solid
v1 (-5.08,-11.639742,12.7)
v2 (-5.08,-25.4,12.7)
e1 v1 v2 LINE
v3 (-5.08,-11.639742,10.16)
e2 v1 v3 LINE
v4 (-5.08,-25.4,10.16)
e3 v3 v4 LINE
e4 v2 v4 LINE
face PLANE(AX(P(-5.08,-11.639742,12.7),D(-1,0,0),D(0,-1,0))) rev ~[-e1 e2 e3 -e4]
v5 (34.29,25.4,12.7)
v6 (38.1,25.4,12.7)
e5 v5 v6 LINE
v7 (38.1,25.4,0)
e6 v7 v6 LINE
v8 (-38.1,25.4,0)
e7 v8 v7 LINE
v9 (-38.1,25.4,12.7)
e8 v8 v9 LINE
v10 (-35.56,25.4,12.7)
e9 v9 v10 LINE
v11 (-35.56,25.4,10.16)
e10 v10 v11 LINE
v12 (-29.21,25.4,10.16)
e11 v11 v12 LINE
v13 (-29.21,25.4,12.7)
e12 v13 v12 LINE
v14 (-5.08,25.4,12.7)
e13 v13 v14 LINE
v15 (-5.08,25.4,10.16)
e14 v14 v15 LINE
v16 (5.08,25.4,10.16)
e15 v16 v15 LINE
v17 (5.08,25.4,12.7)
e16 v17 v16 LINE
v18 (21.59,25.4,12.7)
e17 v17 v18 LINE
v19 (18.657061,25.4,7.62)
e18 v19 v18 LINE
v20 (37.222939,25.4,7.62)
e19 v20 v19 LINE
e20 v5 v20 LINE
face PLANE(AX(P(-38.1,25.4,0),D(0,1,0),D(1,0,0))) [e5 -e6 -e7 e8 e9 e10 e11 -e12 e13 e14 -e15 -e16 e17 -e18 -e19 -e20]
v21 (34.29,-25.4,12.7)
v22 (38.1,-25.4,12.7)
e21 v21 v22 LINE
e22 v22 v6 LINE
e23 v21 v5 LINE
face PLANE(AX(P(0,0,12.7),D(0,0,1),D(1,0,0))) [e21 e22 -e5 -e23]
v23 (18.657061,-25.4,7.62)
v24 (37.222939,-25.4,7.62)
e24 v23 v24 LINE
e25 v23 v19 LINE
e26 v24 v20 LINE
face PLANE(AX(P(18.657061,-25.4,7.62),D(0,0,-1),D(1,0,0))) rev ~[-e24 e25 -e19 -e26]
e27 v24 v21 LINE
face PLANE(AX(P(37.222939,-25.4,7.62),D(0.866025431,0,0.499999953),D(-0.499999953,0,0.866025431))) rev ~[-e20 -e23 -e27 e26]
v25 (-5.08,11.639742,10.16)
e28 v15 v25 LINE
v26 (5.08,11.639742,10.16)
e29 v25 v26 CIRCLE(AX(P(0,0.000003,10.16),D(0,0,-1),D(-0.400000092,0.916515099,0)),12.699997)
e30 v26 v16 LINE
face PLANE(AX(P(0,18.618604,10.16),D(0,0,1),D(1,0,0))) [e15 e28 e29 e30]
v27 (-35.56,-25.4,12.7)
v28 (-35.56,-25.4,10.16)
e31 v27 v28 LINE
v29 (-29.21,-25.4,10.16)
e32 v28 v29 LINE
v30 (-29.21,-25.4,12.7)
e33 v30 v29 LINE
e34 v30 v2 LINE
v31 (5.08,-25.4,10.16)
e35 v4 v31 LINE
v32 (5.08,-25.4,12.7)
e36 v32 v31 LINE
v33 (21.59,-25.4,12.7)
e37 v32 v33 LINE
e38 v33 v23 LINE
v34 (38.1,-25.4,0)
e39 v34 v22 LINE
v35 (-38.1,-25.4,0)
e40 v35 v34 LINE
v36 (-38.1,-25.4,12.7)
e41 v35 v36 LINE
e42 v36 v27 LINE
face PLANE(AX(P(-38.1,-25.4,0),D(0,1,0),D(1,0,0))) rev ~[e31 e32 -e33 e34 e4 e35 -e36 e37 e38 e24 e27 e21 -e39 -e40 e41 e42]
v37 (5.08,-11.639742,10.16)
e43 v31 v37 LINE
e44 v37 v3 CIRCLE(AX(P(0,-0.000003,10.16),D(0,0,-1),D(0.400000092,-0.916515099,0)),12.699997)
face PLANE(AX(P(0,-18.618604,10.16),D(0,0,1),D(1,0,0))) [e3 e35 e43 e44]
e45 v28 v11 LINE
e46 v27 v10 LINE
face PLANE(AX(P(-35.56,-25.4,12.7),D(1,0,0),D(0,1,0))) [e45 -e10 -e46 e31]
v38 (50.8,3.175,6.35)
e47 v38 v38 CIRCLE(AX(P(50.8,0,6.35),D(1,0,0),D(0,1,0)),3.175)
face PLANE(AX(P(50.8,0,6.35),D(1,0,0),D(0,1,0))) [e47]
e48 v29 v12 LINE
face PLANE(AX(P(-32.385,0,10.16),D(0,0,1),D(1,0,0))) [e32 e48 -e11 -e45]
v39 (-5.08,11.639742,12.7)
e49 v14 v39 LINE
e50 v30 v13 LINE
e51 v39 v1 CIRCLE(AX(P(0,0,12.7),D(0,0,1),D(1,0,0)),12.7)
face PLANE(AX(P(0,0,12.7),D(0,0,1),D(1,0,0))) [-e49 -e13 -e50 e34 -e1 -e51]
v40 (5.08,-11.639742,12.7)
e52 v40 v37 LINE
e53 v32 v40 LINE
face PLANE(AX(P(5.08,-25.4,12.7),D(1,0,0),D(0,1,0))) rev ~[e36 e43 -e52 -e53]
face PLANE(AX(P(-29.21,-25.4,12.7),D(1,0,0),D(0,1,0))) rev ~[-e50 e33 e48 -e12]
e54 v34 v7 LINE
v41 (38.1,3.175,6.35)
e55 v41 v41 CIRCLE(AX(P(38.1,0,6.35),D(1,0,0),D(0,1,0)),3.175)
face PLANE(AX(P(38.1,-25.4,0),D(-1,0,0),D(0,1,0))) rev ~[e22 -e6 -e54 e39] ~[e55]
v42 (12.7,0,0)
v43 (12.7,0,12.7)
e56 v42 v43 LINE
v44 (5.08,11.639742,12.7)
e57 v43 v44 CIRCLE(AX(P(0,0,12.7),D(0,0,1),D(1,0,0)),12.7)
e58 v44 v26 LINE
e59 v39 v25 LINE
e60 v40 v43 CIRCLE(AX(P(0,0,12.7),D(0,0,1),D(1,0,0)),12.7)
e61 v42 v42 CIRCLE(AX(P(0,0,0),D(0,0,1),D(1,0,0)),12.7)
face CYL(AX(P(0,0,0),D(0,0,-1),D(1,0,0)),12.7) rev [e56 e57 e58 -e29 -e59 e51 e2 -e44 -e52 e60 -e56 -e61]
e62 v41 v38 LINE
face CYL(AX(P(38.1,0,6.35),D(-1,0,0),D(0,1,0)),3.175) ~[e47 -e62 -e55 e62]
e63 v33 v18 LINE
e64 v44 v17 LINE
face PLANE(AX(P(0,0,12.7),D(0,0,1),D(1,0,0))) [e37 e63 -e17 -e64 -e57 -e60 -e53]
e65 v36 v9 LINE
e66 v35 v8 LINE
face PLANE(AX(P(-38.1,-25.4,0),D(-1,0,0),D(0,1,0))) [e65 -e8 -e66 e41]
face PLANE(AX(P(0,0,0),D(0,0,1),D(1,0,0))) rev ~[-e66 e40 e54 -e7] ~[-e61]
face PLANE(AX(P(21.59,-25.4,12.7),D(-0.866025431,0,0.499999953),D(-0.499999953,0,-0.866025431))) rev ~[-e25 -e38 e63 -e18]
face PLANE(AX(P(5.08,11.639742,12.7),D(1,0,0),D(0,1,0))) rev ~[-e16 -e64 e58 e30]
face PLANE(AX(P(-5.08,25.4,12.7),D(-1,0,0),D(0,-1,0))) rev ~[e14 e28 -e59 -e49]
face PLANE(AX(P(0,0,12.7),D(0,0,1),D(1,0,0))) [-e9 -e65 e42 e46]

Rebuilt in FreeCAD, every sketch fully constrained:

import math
import FreeCAD as App
import Part
import Sketcher

V = App.Vector
Q = App.Units.Quantity

doc = App.newDocument("Part")
body = doc.addObject("PartDesign::Body", "Body")

sketch1 = body.newObject("Sketcher::SketchObject", "Sketch")
sketch1.AttachmentSupport = (doc.getObject("XY_Plane"), [""])
sketch1.MapMode = "FlatFace"
sketch1.addGeometry([
    Part.LineSegment(V(-38, 25, 0), V(-38, -25, 0)),
    Part.LineSegment(V(-38, -25, 0), V(38, -25, 0)),
    Part.LineSegment(V(38, -25, 0), V(38, 25, 0)),
    Part.LineSegment(V(38, 25, 0), V(-38, 25, 0)),
    Part.Circle(V(0, 0, 0), V(0, 0, 1), 13),
], False)
sketch1.addConstraint([
    Sketcher.Constraint("Coincident", 0, 2, 1, 1),
    Sketcher.Constraint("Coincident", 1, 2, 2, 1),
    Sketcher.Constraint("Coincident", 2, 2, 3, 1),
    Sketcher.Constraint("Coincident", 3, 2, 0, 1),
    Sketcher.Constraint("Vertical", 0),
    Sketcher.Constraint("Horizontal", 1),
    Sketcher.Constraint("Vertical", 2),
    Sketcher.Constraint("Horizontal", 3),
    Sketcher.Constraint("Coincident", 4, 3, -1, 1),
    Sketcher.Constraint("Symmetric", 0, 2, 2, 2, -1, 1),
    Sketcher.Constraint("Diameter", 4, Q("1 in")),
    Sketcher.Constraint("DistanceX", 1, 1, 1, 2, Q("3 in")),
    Sketcher.Constraint("DistanceY", 0, 2, 0, 1, Q("2 in")),
])
pad1 = body.newObject("PartDesign::Pad", "Pad")
pad1.Profile = sketch1
pad1.Length = Q("0.5 in")

sketch2 = body.newObject("Sketcher::SketchObject", "Sketch001")
sketch2.AttachmentSupport = (doc.getObject("XY_Plane"), [""])
sketch2.MapMode = "FlatFace"
sketch2.AttachmentOffset = App.Placement(V(0, 0, 0.5 * 25.4), App.Rotation())
sketch2.addGeometry([
    Part.ArcOfCircle(Part.Circle(V(0, 0, 0), V(0, 0, 1), 13), math.radians(-114), math.radians(-66)),
    Part.LineSegment(V(-5, -12, 0), V(-5, -25, 0)),
    Part.LineSegment(V(-5, -25, 0), V(5, -25, 0)),
    Part.LineSegment(V(5, -25, 0), V(5, -12, 0)),
    Part.LineSegment(V(5, 25, 0), V(-5, 25, 0)),
    Part.LineSegment(V(-5, 25, 0), V(-5, 12, 0)),
    Part.ArcOfCircle(Part.Circle(V(0, 0, 0), V(0, 0, 1), 13), math.radians(66), math.radians(114)),
    Part.LineSegment(V(5, 12, 0), V(5, 25, 0)),
    Part.LineSegment(V(-36, 25, 0), V(-36, -25, 0)),
    Part.LineSegment(V(-36, -25, 0), V(-29, -25, 0)),
    Part.LineSegment(V(-29, -25, 0), V(-29, 25, 0)),
    Part.LineSegment(V(-29, 25, 0), V(-36, 25, 0)),
], False)
sketch2.addConstraint([
    Sketcher.Constraint("Coincident", 0, 1, 1, 1),
    Sketcher.Constraint("Coincident", 1, 2, 2, 1),
    Sketcher.Constraint("Coincident", 2, 2, 3, 1),
    Sketcher.Constraint("Coincident", 3, 2, 0, 2),
    Sketcher.Constraint("Coincident", 4, 2, 5, 1),
    Sketcher.Constraint("Coincident", 5, 2, 6, 2),
    Sketcher.Constraint("Coincident", 6, 1, 7, 1),
    Sketcher.Constraint("Coincident", 7, 2, 4, 1),
    Sketcher.Constraint("Coincident", 8, 2, 9, 1),
    Sketcher.Constraint("Coincident", 9, 2, 10, 1),
    Sketcher.Constraint("Coincident", 10, 2, 11, 1),
    Sketcher.Constraint("Coincident", 11, 2, 8, 1),
    Sketcher.Constraint("Vertical", 1),
    Sketcher.Constraint("Horizontal", 2),
    Sketcher.Constraint("Vertical", 3),
    Sketcher.Constraint("Horizontal", 4),
    Sketcher.Constraint("Vertical", 5),
    Sketcher.Constraint("Vertical", 7),
    Sketcher.Constraint("Vertical", 8),
    Sketcher.Constraint("Horizontal", 9),
    Sketcher.Constraint("Vertical", 10),
    Sketcher.Constraint("Horizontal", 11),
    Sketcher.Constraint("Coincident", 0, 3, -1, 1),
    Sketcher.Constraint("Coincident", 6, 3, -1, 1),
    Sketcher.Constraint("Equal", 0, 6),
    Sketcher.Constraint("Symmetric", 2, 2, 4, 2, -1, 1),
    Sketcher.Constraint("Horizontal", 0, 1, 3, 2),
    Sketcher.Constraint("Horizontal", 5, 2, 6, 1),
    Sketcher.Constraint("Horizontal", 2, 2, 8, 2),
    Sketcher.Constraint("Horizontal", 7, 2, 10, 2),
    Sketcher.Constraint("Radius", 0, Q("0.4999999 in")),
    Sketcher.Constraint("DistanceY", 8, 2, 8, 1, Q("2 in")),
    Sketcher.Constraint("DistanceX", 2, 1, 2, 2, Q("0.4 in")),
    Sketcher.Constraint("DistanceX", 9, 1, 9, 2, Q("0.25 in")),
    Sketcher.Constraint("DistanceX", 8, 2, -1, 1, Q("1.4 in")),
])
pocket1 = body.newObject("PartDesign::Pocket", "Pocket")
pocket1.Profile = sketch2
pocket1.Length = Q("0.1 in")

sketch3 = body.newObject("Sketcher::SketchObject", "Sketch002")
sketch3.AttachmentSupport = (doc.getObject("XZ_Plane"), [""])
sketch3.MapMode = "FlatFace"
sketch3.AttachmentOffset = App.Placement(V(0, 0, 1 * 25.4), App.Rotation())
sketch3.addGeometry([
    Part.LineSegment(V(34, 13, 0), V(22, 13, 0)),
    Part.LineSegment(V(22, 13, 0), V(19, 8, 0)),
    Part.LineSegment(V(19, 8, 0), V(37, 8, 0)),
    Part.LineSegment(V(37, 8, 0), V(34, 13, 0)),
], False)
sketch3.addConstraint([
    Sketcher.Constraint("Coincident", 0, 2, 1, 1),
    Sketcher.Constraint("Coincident", 1, 2, 2, 1),
    Sketcher.Constraint("Coincident", 2, 2, 3, 1),
    Sketcher.Constraint("Coincident", 3, 2, 0, 1),
    Sketcher.Constraint("Horizontal", 0),
    Sketcher.Constraint("Horizontal", 2),
    Sketcher.Constraint("Equal", 1, 3),
    Sketcher.Constraint("DistanceX", 0, 2, 0, 1, Q("0.5 in")),
    Sketcher.Constraint("Angle", 1, Q("-119.999997 deg")),
    Sketcher.Constraint("DistanceY", -1, 1, 0, 2, Q("0.5 in")),
    Sketcher.Constraint("DistanceY", -1, 1, 1, 2, Q("0.3 in")),
    Sketcher.Constraint("DistanceX", -1, 1, 0, 2, Q("0.85 in")),
])
pocket2 = body.newObject("PartDesign::Pocket", "Pocket001")
pocket2.Profile = sketch3
pocket2.Length = Q("2.002 in")

sketch4 = body.newObject("Sketcher::SketchObject", "Sketch003")
sketch4.AttachmentSupport = (doc.getObject("YZ_Plane"), [""])
sketch4.MapMode = "FlatFace"
sketch4.AttachmentOffset = App.Placement(V(0, 0, 1.5 * 25.4), App.Rotation())
sketch4.addGeometry(Part.Circle(V(0, 6.3, 0), V(0, 0, 1), 3.2), False)
sketch4.addConstraint([
    Sketcher.Constraint("PointOnObject", 0, 3, -2),
    Sketcher.Constraint("Diameter", 0, Q("0.25 in")),
    Sketcher.Constraint("DistanceY", -1, 1, 0, 3, Q("0.25 in")),
])
pad2 = body.newObject("PartDesign::Pad", "Pad001")
pad2.Profile = sketch4
pad2.Length = Q("0.5 in")

doc.recompute()
